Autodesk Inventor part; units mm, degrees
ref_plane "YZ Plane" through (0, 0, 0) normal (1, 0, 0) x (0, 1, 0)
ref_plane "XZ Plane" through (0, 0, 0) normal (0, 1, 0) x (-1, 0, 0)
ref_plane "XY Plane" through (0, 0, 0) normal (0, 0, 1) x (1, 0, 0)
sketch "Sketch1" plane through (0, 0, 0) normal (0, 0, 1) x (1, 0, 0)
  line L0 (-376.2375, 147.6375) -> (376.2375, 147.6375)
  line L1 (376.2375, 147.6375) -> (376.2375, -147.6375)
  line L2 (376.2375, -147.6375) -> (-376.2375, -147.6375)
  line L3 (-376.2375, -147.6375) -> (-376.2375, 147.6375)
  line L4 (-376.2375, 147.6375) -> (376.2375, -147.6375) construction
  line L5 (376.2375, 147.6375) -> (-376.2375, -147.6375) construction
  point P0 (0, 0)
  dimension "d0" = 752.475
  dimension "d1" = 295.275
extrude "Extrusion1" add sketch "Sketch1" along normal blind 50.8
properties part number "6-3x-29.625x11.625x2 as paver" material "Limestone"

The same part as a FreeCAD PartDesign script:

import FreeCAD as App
import Part
import Sketcher
from FreeCAD import Vector
Q = App.Units.Quantity


def add_polygon(sketch, points):
    """Adds a closed chain of lines whose ends are joined by coincident constraints."""
    first, n = sketch.GeometryCount, len(points)
    for a, b in zip(points, points[1:] + points[:1]):
        sketch.addGeometry(Part.LineSegment(App.Vector(*a, 0), App.Vector(*b, 0)), False)
    for i in range(n):
        sketch.addConstraint(Sketcher.Constraint("Coincident", first + i, 2, first + (i + 1) % n, 1))

doc = App.newDocument("Part")
body = doc.addObject("PartDesign::Body", "Body")

# Sketch on XY plane
sketch1 = doc.addObject("Sketcher::SketchObject", "Sketch")
body.addObject(sketch1)
sketch1.AttachmentSupport = (doc.XY_Plane, [""])
sketch1.MapMode = "FlatFace"
add_polygon(sketch1, [(376.2375, 147.6375), (-376.2375, 147.6375), (-376.2375, -147.6375), (376.2375, -147.6375)])  # lines 0-3
sketch1.addConstraint([
    Sketcher.Constraint("Horizontal", 0),
    Sketcher.Constraint("Vertical", 1),
    Sketcher.Constraint("Horizontal", 2),
    Sketcher.Constraint("Vertical", 3),
    Sketcher.Constraint("Symmetric", 0, 2, 2, 2, -1, 1),
    Sketcher.Constraint("DistanceX", 0, 2, 0, 1, Q("29.625 in")),
    Sketcher.Constraint("DistanceY", 1, 2, 1, 1, Q("11.625 in")),
])
pad1 = doc.addObject("PartDesign::Pad", "Pad")
body.addObject(pad1)
pad1.Profile = sketch1
pad1.Length = Q("2 in")

doc.recompute()
